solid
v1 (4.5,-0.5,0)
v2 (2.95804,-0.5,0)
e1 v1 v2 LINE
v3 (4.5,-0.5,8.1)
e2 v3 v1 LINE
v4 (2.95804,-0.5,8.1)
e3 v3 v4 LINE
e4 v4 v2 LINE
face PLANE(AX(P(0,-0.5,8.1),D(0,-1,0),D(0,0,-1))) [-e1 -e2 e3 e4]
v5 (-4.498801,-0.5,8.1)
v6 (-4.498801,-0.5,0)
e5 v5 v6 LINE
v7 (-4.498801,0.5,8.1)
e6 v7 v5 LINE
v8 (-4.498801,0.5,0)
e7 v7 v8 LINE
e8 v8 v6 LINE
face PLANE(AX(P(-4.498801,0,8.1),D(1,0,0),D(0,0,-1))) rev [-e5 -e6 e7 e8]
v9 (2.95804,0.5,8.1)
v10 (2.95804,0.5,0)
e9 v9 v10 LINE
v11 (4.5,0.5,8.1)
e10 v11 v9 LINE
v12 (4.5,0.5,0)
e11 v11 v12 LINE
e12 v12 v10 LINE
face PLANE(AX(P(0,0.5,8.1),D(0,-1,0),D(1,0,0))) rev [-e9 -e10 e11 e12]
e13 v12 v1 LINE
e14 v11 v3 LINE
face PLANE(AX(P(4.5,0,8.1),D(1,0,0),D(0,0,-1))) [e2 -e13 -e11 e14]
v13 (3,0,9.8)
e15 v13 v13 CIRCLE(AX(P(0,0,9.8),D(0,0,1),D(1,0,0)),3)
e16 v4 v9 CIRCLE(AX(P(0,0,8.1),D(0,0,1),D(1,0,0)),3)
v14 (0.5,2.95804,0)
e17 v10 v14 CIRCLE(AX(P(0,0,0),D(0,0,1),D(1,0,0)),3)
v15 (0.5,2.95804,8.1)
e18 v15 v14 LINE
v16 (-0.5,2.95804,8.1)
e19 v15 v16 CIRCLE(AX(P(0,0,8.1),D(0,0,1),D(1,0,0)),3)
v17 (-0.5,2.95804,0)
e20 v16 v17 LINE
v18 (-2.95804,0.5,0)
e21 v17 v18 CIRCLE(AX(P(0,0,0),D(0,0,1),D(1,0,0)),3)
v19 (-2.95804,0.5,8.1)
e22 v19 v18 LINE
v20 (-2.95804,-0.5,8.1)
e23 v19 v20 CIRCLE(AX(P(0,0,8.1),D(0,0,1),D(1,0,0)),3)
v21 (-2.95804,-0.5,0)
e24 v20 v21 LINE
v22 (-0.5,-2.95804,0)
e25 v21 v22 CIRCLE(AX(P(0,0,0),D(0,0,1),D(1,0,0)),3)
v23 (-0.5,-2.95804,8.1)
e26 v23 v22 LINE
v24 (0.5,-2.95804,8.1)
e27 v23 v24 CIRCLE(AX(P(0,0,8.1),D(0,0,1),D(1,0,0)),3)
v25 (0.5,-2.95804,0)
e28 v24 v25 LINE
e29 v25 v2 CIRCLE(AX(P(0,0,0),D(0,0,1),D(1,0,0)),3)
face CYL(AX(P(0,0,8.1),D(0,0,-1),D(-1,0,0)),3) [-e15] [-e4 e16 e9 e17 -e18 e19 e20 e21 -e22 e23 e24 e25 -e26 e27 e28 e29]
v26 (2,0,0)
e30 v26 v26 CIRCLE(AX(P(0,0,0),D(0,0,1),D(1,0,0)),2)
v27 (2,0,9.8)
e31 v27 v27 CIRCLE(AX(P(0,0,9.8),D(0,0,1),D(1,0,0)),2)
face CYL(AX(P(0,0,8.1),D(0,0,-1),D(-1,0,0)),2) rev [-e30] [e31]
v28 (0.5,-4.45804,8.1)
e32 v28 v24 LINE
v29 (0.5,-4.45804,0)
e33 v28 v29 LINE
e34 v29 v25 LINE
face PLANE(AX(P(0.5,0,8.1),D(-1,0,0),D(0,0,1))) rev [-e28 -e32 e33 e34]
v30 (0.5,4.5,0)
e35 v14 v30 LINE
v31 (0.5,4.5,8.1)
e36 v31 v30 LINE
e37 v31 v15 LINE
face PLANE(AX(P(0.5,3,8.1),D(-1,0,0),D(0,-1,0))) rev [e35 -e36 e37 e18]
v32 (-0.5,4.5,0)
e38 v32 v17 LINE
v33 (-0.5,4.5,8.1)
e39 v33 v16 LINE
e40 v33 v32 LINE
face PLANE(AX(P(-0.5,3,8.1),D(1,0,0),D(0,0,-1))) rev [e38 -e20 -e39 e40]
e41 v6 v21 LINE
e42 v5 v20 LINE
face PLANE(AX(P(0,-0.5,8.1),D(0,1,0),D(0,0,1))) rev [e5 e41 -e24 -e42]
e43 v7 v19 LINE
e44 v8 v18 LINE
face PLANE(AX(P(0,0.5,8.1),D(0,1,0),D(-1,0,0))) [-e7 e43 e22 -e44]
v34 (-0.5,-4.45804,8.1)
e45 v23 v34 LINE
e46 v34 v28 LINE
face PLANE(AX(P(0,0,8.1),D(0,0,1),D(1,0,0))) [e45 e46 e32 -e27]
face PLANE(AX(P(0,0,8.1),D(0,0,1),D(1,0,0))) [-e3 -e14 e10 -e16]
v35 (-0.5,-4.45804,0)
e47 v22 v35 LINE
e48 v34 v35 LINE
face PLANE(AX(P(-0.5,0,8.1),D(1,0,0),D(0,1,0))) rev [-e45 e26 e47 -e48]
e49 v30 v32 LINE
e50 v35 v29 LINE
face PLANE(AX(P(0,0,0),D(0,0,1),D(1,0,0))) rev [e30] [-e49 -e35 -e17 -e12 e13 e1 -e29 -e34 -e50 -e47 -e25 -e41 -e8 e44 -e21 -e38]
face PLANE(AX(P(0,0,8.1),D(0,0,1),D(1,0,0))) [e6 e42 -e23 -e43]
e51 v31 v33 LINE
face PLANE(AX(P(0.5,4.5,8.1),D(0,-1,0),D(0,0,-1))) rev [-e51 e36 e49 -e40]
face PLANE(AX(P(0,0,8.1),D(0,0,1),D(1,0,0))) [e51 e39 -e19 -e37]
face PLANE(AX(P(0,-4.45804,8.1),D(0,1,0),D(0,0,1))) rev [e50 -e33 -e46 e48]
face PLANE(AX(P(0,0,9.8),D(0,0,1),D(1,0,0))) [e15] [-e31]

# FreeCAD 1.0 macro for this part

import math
import FreeCAD as App
import Part
import Sketcher
Q = App.Units.Quantity

doc = App.newDocument("Part")
body = doc.addObject("PartDesign::Body", "Body")

sketch1 = doc.addObject("Sketcher::SketchObject", "Sketch")
body.addObject(sketch1)
sketch1.AttachmentSupport = (doc.XY_Plane, [""])
sketch1.MapMode = "FlatFace"
sketch1.addGeometry([
    Part.Circle(App.Vector(0, 0, 0), App.Vector(0, 0, 1), 3),
    Part.Circle(App.Vector(0, 0, 0), App.Vector(0, 0, 1), 2),
], False)
sketch1.addConstraint([
    Sketcher.Constraint("Coincident", 0, 3, -1, 1),
    Sketcher.Constraint("Coincident", 1, 3, -1, 1),
    Sketcher.Constraint("Diameter", 0, Q("6 mm")),
    Sketcher.Constraint("Diameter", 1, Q("4 mm")),
])
pad1 = doc.addObject("PartDesign::Pad", "Pad")
body.addObject(pad1)
pad1.Profile = sketch1
pad1.Length = 8.1

sketch2 = doc.addObject("Sketcher::SketchObject", "Sketch001")
body.addObject(sketch2)
sketch2.AttachmentSupport = (doc.XY_Plane, [""])
sketch2.MapMode = "FlatFace"
sketch2.addGeometry([
    Part.LineSegment(App.Vector(-3, 0.5, 0), App.Vector(-4.5, 0.5, 0)),
    Part.LineSegment(App.Vector(-4.5, 0.5, 0), App.Vector(-4.5, -0.5, 0)),
    Part.LineSegment(App.Vector(-4.5, -0.5, 0), App.Vector(-3, -0.5, 0)),
    Part.ArcOfCircle(Part.Circle(App.Vector(0, 0, 0), App.Vector(0, 0, 1), 3), math.radians(-180), math.radians(-170.41)),
    Part.ArcOfCircle(Part.Circle(App.Vector(0, 0, 0), App.Vector(0, 0, 1), 3), math.radians(170.41), math.radians(180)),
], False)
sketch2.addConstraint([
    Sketcher.Constraint("Coincident", 0, 2, 1, 1),
    Sketcher.Constraint("Coincident", 1, 2, 2, 1),
    Sketcher.Constraint("Coincident", 2, 2, 3, 2),
    Sketcher.Constraint("Tangent", 3, 1, 4, 2),
    Sketcher.Constraint("Coincident", 4, 1, 0, 1),
    Sketcher.Constraint("Horizontal", 0),
    Sketcher.Constraint("Vertical", 1),
    Sketcher.Constraint("Horizontal", 2),
    Sketcher.Constraint("Coincident", 3, 3, -1, 1),
    Sketcher.Constraint("Equal", 3, 4),
    Sketcher.Constraint("PointOnObject", 3, 1, -1),
    Sketcher.Constraint("Vertical", 2, 2, 4, 1),
    Sketcher.Constraint("Radius", 3, Q("3 mm")),
    Sketcher.Constraint("DistanceY", 1, 2, 1, 1, Q("1 mm")),
    Sketcher.Constraint("DistanceX", 0, 2, 0, 1, Q("1.540761 mm")),
])
pad2 = doc.addObject("PartDesign::Pad", "Pad001")
body.addObject(pad2)
pad2.Profile = sketch2
pad2.Length = 8.1

sketch3 = doc.addObject("Sketcher::SketchObject", "Sketch002")
body.addObject(sketch3)
sketch3.AttachmentSupport = (doc.XY_Plane, [""])
sketch3.MapMode = "FlatFace"
sketch3.addGeometry([
    Part.ArcOfCircle(Part.Circle(App.Vector(0, 0, 0), App.Vector(0, 0, 1), 3), math.radians(-99.59), math.radians(-90)),
    Part.ArcOfCircle(Part.Circle(App.Vector(0, 0, 0), App.Vector(0, 0, 1), 3), math.radians(-90), math.radians(-80.41)),
    Part.LineSegment(App.Vector(0.5, -3, 0), App.Vector(0.5, -4.5, 0)),
    Part.LineSegment(App.Vector(0.5, -4.5, 0), App.Vector(-0.5, -4.5, 0)),
    Part.LineSegment(App.Vector(-0.5, -4.5, 0), App.Vector(-0.5, -3, 0)),
    Part.ArcOfCircle(Part.Circle(App.Vector(0, 0, 0), App.Vector(0, 0, 1), 3), math.radians(-9.59), math.radians(0)),
    Part.ArcOfCircle(Part.Circle(App.Vector(0, 0, 0), App.Vector(0, 0, 1), 3), math.radians(0), math.radians(9.59)),
    Part.LineSegment(App.Vector(3, 0.5, 0), App.Vector(4.5, 0.5, 0)),
    Part.LineSegment(App.Vector(4.5, 0.5, 0), App.Vector(4.5, -0.5, 0)),
    Part.LineSegment(App.Vector(4.5, -0.5, 0), App.Vector(3, -0.5, 0)),
    Part.LineSegment(App.Vector(-0.5, 3, 0), App.Vector(-0.5, 4.5, 0)),
    Part.LineSegment(App.Vector(-0.5, 4.5, 0), App.Vector(0.5, 4.5, 0)),
    Part.LineSegment(App.Vector(0.5, 4.5, 0), App.Vector(0.5, 3, 0)),
    Part.ArcOfCircle(Part.Circle(App.Vector(0, 0, 0), App.Vector(0, 0, 1), 3), math.radians(80.41), math.radians(99.59)),
], False)
sketch3.addConstraint([
    Sketcher.Constraint("Tangent", 0, 2, 1, 1),
    Sketcher.Constraint("Coincident", 1, 2, 2, 1),
    Sketcher.Constraint("Coincident", 2, 2, 3, 1),
    Sketcher.Constraint("Coincident", 3, 2, 4, 1),
    Sketcher.Constraint("Coincident", 4, 2, 0, 1),
    Sketcher.Constraint("Tangent", 5, 2, 6, 1),
    Sketcher.Constraint("Coincident", 6, 2, 7, 1),
    Sketcher.Constraint("Coincident", 7, 2, 8, 1),
    Sketcher.Constraint("Coincident", 8, 2, 9, 1),
    Sketcher.Constraint("Coincident", 9, 2, 5, 1),
    Sketcher.Constraint("Coincident", 10, 2, 11, 1),
    Sketcher.Constraint("Coincident", 11, 2, 12, 1),
    Sketcher.Constraint("Coincident", 12, 2, 13, 1),
    Sketcher.Constraint("Coincident", 13, 2, 10, 1),
    Sketcher.Constraint("Vertical", 2),
    Sketcher.Constraint("Horizontal", 3),
    Sketcher.Constraint("Vertical", 4),
    Sketcher.Constraint("Horizontal", 7),
    Sketcher.Constraint("Vertical", 8),
    Sketcher.Constraint("Horizontal", 9),
    Sketcher.Constraint("Vertical", 10),
    Sketcher.Constraint("Horizontal", 11),
    Sketcher.Constraint("Vertical", 12),
    Sketcher.Constraint("Coincident", 0, 3, -1, 1),
    Sketcher.Constraint("Coincident", 5, 3, -1, 1),
    Sketcher.Constraint("Coincident", 13, 3, -1, 1),
    Sketcher.Constraint("Equal", 0, 1),
    Sketcher.Constraint("Equal", 1, 5),
    Sketcher.Constraint("Equal", 5, 6),
    Sketcher.Constraint("Equal", 6, 13),
    Sketcher.Constraint("PointOnObject", 0, 2, -2),
    Sketcher.Constraint("PointOnObject", 5, 2, -1),
    Sketcher.Constraint("Horizontal", 1, 2, 4, 2),
    Sketcher.Constraint("Horizontal", 12, 2, 13, 2),
    Sketcher.Constraint("Vertical", 6, 2, 9, 2),
    Sketcher.Constraint("Vertical", 4, 2, 10, 2),
    Sketcher.Constraint("Equal", 11, 8),
    Sketcher.Constraint("Equal", 9, 10),
    Sketcher.Constraint("Radius", 0, Q("3 mm")),
    Sketcher.Constraint("DistanceX", 3, 2, 3, 1, Q("1 mm")),
    Sketcher.Constraint("DistanceY", 2, 2, 2, 1, Q("1.5 mm")),
    Sketcher.Constraint("DistanceX", -1, 1, 7, 2, Q("4.5 mm")),
])
pad3 = doc.addObject("PartDesign::Pad", "Pad002")
body.addObject(pad3)
pad3.Profile = sketch3
pad3.Length = 8.1

sketch4 = doc.addObject("Sketcher::SketchObject", "Sketch003")
body.addObject(sketch4)
sketch4.AttachmentSupport = (doc.XY_Plane, [""])
sketch4.MapMode = "FlatFace"
sketch4.addGeometry([
    Part.ArcOfCircle(Part.Circle(App.Vector(0, 0, 0), App.Vector(0, 0, 1), 3), math.radians(10), math.radians(80)),
    Part.LineSegment(App.Vector(0.5, 2.958, 0), App.Vector(0.5, 4.5, 0)),
    Part.LineSegment(App.Vector(0.5, 4.5, 0), App.Vector(-0.4975, 4.5, 0)),
    Part.LineSegment(App.Vector(-0.4975, 4.5, 0), App.Vector(-0.4975, 2.9585, 0)),
    Part.ArcOfCircle(Part.Circle(App.Vector(0.0003, -0.0017, 0), App.Vector(0, 0, 1), 3.0018), math.radians(99.55), math.radians(99.59)),
    Part.ArcOfCircle(Part.Circle(App.Vector(0, 0, 0), App.Vector(0, 0, 1), 3), math.radians(100), math.radians(170)),
    Part.LineSegment(App.Vector(-2.958, 0.5, 0), App.Vector(-4.4988, 0.5, 0)),
    Part.LineSegment(App.Vector(-4.4988, 0.5, 0), App.Vector(-4.4988, -0.5, 0)),
    Part.LineSegment(App.Vector(-4.4988, -0.5, 0), App.Vector(-2.958, -0.5, 0)),
    Part.ArcOfCircle(Part.Circle(App.Vector(0, 0, 0), App.Vector(0, 0, 1), 3), math.radians(-170), math.radians(-100)),
    Part.LineSegment(App.Vector(-0.5, -2.958, 0), App.Vector(-0.5, -4.458, 0)),
    Part.LineSegment(App.Vector(-0.5, -4.458, 0), App.Vector(0.5, -4.458, 0)),
    Part.LineSegment(App.Vector(0.5, -4.458, 0), App.Vector(0.5, -2.958, 0)),
    Part.ArcOfCircle(Part.Circle(App.Vector(0, 0, 0), App.Vector(0, 0, 1), 3), math.radians(-80), math.radians(-10)),
    Part.LineSegment(App.Vector(2.958, -0.5, 0), App.Vector(4.5, -0.5, 0)),
    Part.LineSegment(App.Vector(4.5, -0.5, 0), App.Vector(4.5, 0.5, 0)),
    Part.LineSegment(App.Vector(4.5, 0.5, 0), App.Vector(2.958, 0.5, 0)),
    Part.Circle(App.Vector(0, 0, 0), App.Vector(0, 0, 1), 2),
], False)
sketch4.addConstraint([
    Sketcher.Constraint("Coincident", 0, 2, 1, 1),
    Sketcher.Constraint("Coincident", 1, 2, 2, 1),
    Sketcher.Constraint("Coincident", 2, 2, 3, 1),
    Sketcher.Constraint("Coincident", 3, 2, 4, 1),
    Sketcher.Constraint("Tangent", 4, 2, 5, 1),
    Sketcher.Constraint("Coincident", 5, 2, 6, 1),
    Sketcher.Constraint("Coincident", 6, 2, 7, 1),
    Sketcher.Constraint("Coincident", 7, 2, 8, 1),
    Sketcher.Constraint("Coincident", 8, 2, 9, 1),
    Sketcher.Constraint("Coincident", 9, 2, 10, 1),
    Sketcher.Constraint("Coincident", 10, 2, 11, 1),
    Sketcher.Constraint("Coincident", 11, 2, 12, 1),
    Sketcher.Constraint("Coincident", 12, 2, 13, 1),
    Sketcher.Constraint("Coincident", 13, 2, 14, 1),
    Sketcher.Constraint("Coincident", 14, 2, 15, 1),
    Sketcher.Constraint("Coincident", 15, 2, 16, 1),
    Sketcher.Constraint("Coincident", 16, 2, 0, 1),
    Sketcher.Constraint("Vertical", 1),
    Sketcher.Constraint("Horizontal", 2),
    Sketcher.Constraint("Vertical", 3),
    Sketcher.Constraint("Horizontal", 6),
    Sketcher.Constraint("Vertical", 7),
    Sketcher.Constraint("Horizontal", 8),
    Sketcher.Constraint("Vertical", 10),
    Sketcher.Constraint("Horizontal", 11),
    Sketcher.Constraint("Vertical", 12),
    Sketcher.Constraint("Horizontal", 14),
    Sketcher.Constraint("Vertical", 15),
    Sketcher.Constraint("Horizontal", 16),
    Sketcher.Constraint("Coincident", 0, 3, -1, 1),
    Sketcher.Constraint("Coincident", 5, 3, -1, 1),
    Sketcher.Constraint("Coincident", 9, 3, -1, 1),
    Sketcher.Constraint("Coincident", 13, 3, -1, 1),
    Sketcher.Constraint("Coincident", 17, 3, -1, 1),
    Sketcher.Constraint("Equal", 0, 5),
    Sketcher.Constraint("Equal", 5, 9),
    Sketcher.Constraint("Equal", 9, 13),
    Sketcher.Constraint("Horizontal", 0, 2, 4, 2),
    Sketcher.Constraint("Horizontal", 9, 2, 12, 2),
    Sketcher.Constraint("Horizontal", 8, 2, 13, 2),
    Sketcher.Constraint("Horizontal", 6, 2, 15, 2),
    Sketcher.Constraint("Vertical", 5, 2, 8, 2),
    Sketcher.Constraint("Vertical", 4, 2, 9, 2),
    Sketcher.Constraint("Equal", 16, 1),
    Sketcher.Constraint("Equal", 11, 7),
    Sketcher.Constraint("Diameter", 17, Q("4 mm")),
    Sketcher.Constraint("Radius", 0, Q("3 mm")),
    Sketcher.Constraint("DistanceX", 11, 1, 11, 2, Q("1 mm")),
    Sketcher.Constraint("DistanceY", 10, 2, 10, 1, Q("1.5 mm")),
    Sketcher.Constraint("DistanceY", -1, 1, 1, 2, Q("4.5 mm")),
    Sketcher.Constraint("Radius", 4, Q("3.001762 mm")),
    Sketcher.Constraint("DistanceX", 6, 2, 6, 1, Q("1.540761 mm")),
    Sketcher.Constraint("DistanceX", 2, 2, 2, 1, Q("0.997545 mm")),
])
pad4 = doc.addObject("PartDesign::Pad", "Pad003")
body.addObject(pad4)
pad4.Profile = sketch4
pad4.Length = 8.1

sketch5 = doc.addObject("Sketcher::SketchObject", "Sketch004")
body.addObject(sketch5)
sketch5.AttachmentSupport = (doc.XY_Plane, [""])
sketch5.MapMode = "FlatFace"
sketch5.AttachmentOffset = App.Placement(App.Vector(0, 0, 8.1), App.Rotation())
sketch5.addGeometry([
    Part.Circle(App.Vector(0, 0, 0), App.Vector(0, 0, 1), 3),
    Part.Circle(App.Vector(0, 0, 0), App.Vector(0, 0, 1), 2),
], False)
sketch5.addConstraint([
    Sketcher.Constraint("Coincident", 0, 3, -1, 1),
    Sketcher.Constraint("Coincident", 1, 3, -1, 1),
    Sketcher.Constraint("Diameter", 0, Q("6 mm")),
    Sketcher.Constraint("Diameter", 1, Q("4 mm")),
])
pad5 = doc.addObject("PartDesign::Pad", "Pad004")
body.addObject(pad5)
pad5.Profile = sketch5
pad5.Length = 1.7

doc.recompute()
